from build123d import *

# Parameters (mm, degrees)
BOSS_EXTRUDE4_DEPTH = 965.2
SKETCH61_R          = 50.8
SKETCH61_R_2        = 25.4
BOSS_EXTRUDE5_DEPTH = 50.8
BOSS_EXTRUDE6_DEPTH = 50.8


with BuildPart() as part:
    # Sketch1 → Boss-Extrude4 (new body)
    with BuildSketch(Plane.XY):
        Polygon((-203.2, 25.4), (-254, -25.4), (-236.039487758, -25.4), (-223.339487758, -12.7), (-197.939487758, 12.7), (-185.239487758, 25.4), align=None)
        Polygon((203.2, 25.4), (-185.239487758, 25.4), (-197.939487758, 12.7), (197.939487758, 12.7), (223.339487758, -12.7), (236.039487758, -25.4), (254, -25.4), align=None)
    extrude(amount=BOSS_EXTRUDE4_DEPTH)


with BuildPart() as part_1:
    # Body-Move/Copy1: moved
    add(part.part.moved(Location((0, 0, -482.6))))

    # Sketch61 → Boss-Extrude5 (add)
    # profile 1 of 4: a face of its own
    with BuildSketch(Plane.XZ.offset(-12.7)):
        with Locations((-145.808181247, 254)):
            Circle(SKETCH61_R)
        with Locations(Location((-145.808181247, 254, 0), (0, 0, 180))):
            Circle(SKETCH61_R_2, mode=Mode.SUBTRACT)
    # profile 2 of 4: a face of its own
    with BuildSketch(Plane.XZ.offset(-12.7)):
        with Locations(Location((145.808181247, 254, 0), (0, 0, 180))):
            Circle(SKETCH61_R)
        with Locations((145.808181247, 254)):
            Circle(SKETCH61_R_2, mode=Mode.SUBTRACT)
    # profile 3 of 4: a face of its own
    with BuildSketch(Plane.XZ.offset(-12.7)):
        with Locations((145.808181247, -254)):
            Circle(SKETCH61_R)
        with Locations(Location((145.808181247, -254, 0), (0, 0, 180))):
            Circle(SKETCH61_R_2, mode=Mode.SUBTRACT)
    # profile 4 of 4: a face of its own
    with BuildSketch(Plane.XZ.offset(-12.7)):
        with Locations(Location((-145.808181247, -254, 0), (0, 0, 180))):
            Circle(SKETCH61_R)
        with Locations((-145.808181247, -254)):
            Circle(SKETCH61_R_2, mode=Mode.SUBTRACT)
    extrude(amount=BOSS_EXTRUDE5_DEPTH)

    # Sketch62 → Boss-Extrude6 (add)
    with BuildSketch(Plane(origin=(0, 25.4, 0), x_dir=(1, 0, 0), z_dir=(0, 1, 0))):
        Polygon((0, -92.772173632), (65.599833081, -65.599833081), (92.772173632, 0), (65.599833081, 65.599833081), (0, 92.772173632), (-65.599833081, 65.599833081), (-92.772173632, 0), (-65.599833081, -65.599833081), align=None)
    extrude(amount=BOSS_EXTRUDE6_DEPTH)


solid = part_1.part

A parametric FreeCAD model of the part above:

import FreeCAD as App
import Part
import Sketcher

V = App.Vector
Q = App.Units.Quantity


def add_polygon(sketch, points):
    """Adds a closed chain of lines whose ends are joined by coincident constraints."""
    first, n = sketch.GeometryCount, len(points)
    for a, b in zip(points, points[1:] + points[:1]):
        sketch.addGeometry(Part.LineSegment(App.Vector(*a, 0), App.Vector(*b, 0)), False)
    for i in range(n):
        sketch.addConstraint(Sketcher.Constraint("Coincident", first + i, 2, first + (i + 1) % n, 1))

doc = App.newDocument("Part")
params = doc.addObject("Spreadsheet::Sheet", "Params")
for row, (alias, value) in enumerate([
    ("sketch1_width", "16 in"),
    ("pad1_length", "38 in"),
    ("sketch2_diameter", "4 in"),
    ("sketch2_diameter2", "2 in"),
    ("pad2_length", "2 in"),
    ("pad3_length", "2 in"),
], start=1):
    params.set(f"A{row}", alias)
    params.set(f"B{row}", "=" + value)
    params.setAlias(f"B{row}", alias)

body = doc.addObject("PartDesign::Body", "Body")

sketch1 = body.newObject("Sketcher::SketchObject", "Sketch")
sketch1.AttachmentSupport = (doc.getObject("XY_Plane"), [""])
sketch1.MapMode = "FlatFace"
add_polygon(sketch1, [(-203, 25), (-254, -25), (-236, -25), (-198, 13), (198, 13), (236, -25), (254, -25), (203, 25)])
sketch1.addConstraint(Sketcher.Constraint("Horizontal", 1))
sketch1.addConstraint(Sketcher.Constraint("Horizontal", 3))
sketch1.addConstraint(Sketcher.Constraint("Horizontal", 5))
sketch1.addConstraint(Sketcher.Constraint("Horizontal", 7))
sketch1.addConstraint(Sketcher.Constraint("Symmetric", 1, 2, 4, 2, -2))
sketch1.addConstraint(Sketcher.Constraint("Parallel", 0, 2))
sketch1.addConstraint(Sketcher.Constraint("Perpendicular", 2, 4))
sketch1.addConstraint(Sketcher.Constraint("Parallel", 4, 6))
sketch1.addConstraint(Sketcher.Constraint("Equal", 1, 5))
sketch1.addConstraint(Sketcher.Constraint("Equal", 2, 4))
sketch1.addConstraint(Sketcher.Constraint("DistanceX", 7, 2, 7, 1, Q("16 in")))
sketch1.addConstraint(Sketcher.Constraint("DistanceX", 0, 2, -1, 1, Q("10 in")))
sketch1.addConstraint(Sketcher.Constraint("DistanceY", 0, 2, -1, 1, Q("1 in")))
sketch1.addConstraint(Sketcher.Constraint("DistanceY", -1, 1, 2, 2, Q("0.5 in")))
sketch1.addConstraint(Sketcher.Constraint("DistanceX", 1, 1, 1, 2, 17.960512))
sketch1.setExpression("Constraints[18]", "Params.sketch1_width")
pad1 = body.newObject("PartDesign::Pad", "Pad")
pad1.Profile = sketch1
pad1.setExpression("Length", "Params.pad1_length")
body2 = doc.addObject("PartDesign::Body", "Body001")
doc.recompute()

body.Placement = App.Placement(V(0, 0, -482.6), App.Rotation(V(0, 0, 1), 0))
boolean = body2.newObject("PartDesign::Boolean", "Boolean")
boolean.Type = "Fuse"
boolean.addObjects([body])

sketch2 = body2.newObject("Sketcher::SketchObject", "Sketch001")
sketch2.AttachmentSupport = (doc.getObject("XZ_Plane001"), [""])
sketch2.MapMode = "FlatFace"
sketch2.AttachmentOffset = App.Placement(V(0, 0, -0.5 * 25.4), App.Rotation())
sketch2.addGeometry(Part.Circle(V(-146, 254, 0), V(0, 0, 1), 51), False)
sketch2.addGeometry(Part.Circle(V(-146, 254, 0), V(0, 0, 1), 25), False)
sketch2.addGeometry(Part.Circle(V(146, 254, 0), V(0, 0, 1), 51), False)
sketch2.addGeometry(Part.Circle(V(146, 254, 0), V(0, 0, 1), 25), False)
sketch2.addGeometry(Part.Circle(V(146, -254, 0), V(0, 0, 1), 51), False)
sketch2.addGeometry(Part.Circle(V(146, -254, 0), V(0, 0, 1), 25), False)
sketch2.addGeometry(Part.Circle(V(-146, -254, 0), V(0, 0, 1), 51), False)
sketch2.addGeometry(Part.Circle(V(-146, -254, 0), V(0, 0, 1), 25), False)
sketch2.addConstraint(Sketcher.Constraint("Coincident", 1, 3, 0, 3))
sketch2.addConstraint(Sketcher.Constraint("Coincident", 3, 3, 2, 3))
sketch2.addConstraint(Sketcher.Constraint("Coincident", 5, 3, 4, 3))
sketch2.addConstraint(Sketcher.Constraint("Coincident", 7, 3, 6, 3))
sketch2.addConstraint(Sketcher.Constraint("Equal", 0, 2))
sketch2.addConstraint(Sketcher.Constraint("Equal", 1, 3))
sketch2.addConstraint(Sketcher.Constraint("Equal", 2, 4))
sketch2.addConstraint(Sketcher.Constraint("Equal", 3, 5))
sketch2.addConstraint(Sketcher.Constraint("Equal", 4, 6))
sketch2.addConstraint(Sketcher.Constraint("Equal", 5, 7))
sketch2.addConstraint(Sketcher.Constraint("Symmetric", 0, 3, 4, 3, -1, 1))
sketch2.addConstraint(Sketcher.Constraint("Symmetric", 2, 3, 6, 3, -1, 1))
sketch2.addConstraint(Sketcher.Constraint("Symmetric", 0, 3, 2, 3, -2))
sketch2.addConstraint(Sketcher.Constraint("Diameter", 0, Q("4 in")))
sketch2.addConstraint(Sketcher.Constraint("Diameter", 1, Q("2 in")))
sketch2.addConstraint(Sketcher.Constraint("DistanceY", -1, 1, 0, 3, Q("10 in")))
sketch2.addConstraint(Sketcher.Constraint("DistanceX", 0, 3, -1, 1, 145.808181))
sketch2.setExpression("Constraints[13]", "Params.sketch2_diameter")
sketch2.setExpression("Constraints[14]", "Params.sketch2_diameter2")
pad2 = body2.newObject("PartDesign::Pad", "Pad001")
pad2.Profile = sketch2
pad2.setExpression("Length", "Params.pad2_length")

sketch3 = body2.newObject("Sketcher::SketchObject", "Sketch002")
sketch3.AttachmentSupport = (doc.getObject("XZ_Plane001"), [""])
sketch3.MapMode = "FlatFace"
sketch3.AttachmentOffset = App.Placement(V(0, 0, -1 * 25.4), App.Rotation())
add_polygon(sketch3, [(0, 93), (66, 66), (93, 0), (66, -66), (0, -93), (-66, -66), (-93, 0), (-66, 66)])
sketch3.addConstraint(Sketcher.Constraint("Symmetric", 0, 2, 4, 2, -1, 1))
sketch3.addConstraint(Sketcher.Constraint("Symmetric", 1, 2, 5, 2, -1, 1))
sketch3.addConstraint(Sketcher.Constraint("Symmetric", 2, 2, 6, 2, -1, 1))
sketch3.addConstraint(Sketcher.Constraint("Symmetric", 3, 2, 7, 2, -1, 1))
sketch3.addConstraint(Sketcher.Constraint("Symmetric", 2, 2, 4, 2, -2))
sketch3.addConstraint(Sketcher.Constraint("PointOnObject", 1, 2, -1))
sketch3.addConstraint(Sketcher.Constraint("PointOnObject", 3, 2, -2))
sketch3.addConstraint(Sketcher.Constraint("Perpendicular", 0, 2))
sketch3.addConstraint(Sketcher.Constraint("Equal", 0, 1))
sketch3.addConstraint(Sketcher.Constraint("Angle", 0, Q("-22.5 deg")))
sketch3.addConstraint(Sketcher.Constraint("DistanceX", 0, 2, 1, 2, 27.172341))
pad3 = body2.newObject("PartDesign::Pad", "Pad002")
pad3.Profile = sketch3
pad3.setExpression("Length", "Params.pad3_length")
pad3.Reversed = True

doc.recompute()
